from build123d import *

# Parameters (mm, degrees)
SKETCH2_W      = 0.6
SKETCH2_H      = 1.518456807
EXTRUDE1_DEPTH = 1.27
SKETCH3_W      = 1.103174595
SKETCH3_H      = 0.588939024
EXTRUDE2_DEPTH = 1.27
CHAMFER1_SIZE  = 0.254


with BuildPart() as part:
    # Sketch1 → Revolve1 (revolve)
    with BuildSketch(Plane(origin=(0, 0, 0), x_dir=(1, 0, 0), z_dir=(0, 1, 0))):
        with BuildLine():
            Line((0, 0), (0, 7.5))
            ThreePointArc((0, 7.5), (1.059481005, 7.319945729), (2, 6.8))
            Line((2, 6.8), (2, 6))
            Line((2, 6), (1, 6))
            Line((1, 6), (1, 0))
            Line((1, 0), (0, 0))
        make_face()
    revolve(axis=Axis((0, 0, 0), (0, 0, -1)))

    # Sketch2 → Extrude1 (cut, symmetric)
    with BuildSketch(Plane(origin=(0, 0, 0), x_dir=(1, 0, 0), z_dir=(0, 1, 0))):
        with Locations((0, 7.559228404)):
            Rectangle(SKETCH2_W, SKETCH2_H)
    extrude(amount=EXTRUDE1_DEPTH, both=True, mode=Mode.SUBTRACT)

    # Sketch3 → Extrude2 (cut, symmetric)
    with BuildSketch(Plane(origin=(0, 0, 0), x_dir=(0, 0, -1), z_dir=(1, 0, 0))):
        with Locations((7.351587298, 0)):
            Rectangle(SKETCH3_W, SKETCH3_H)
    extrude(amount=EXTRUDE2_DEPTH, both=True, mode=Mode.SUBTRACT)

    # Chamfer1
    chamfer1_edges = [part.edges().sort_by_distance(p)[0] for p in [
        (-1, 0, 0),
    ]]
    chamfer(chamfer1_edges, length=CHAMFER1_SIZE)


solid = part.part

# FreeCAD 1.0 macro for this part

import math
import FreeCAD as App
import Part
import Sketcher
from FreeCAD import Vector


def edges_at(feature, points):
    """Names of the edges that pass closest to the given points."""
    edges = feature.Shape.Edges
    near = lambda p: min(range(len(edges)), key=lambda i: edges[i].distToShape(Part.Vertex(*p))[0])
    return sorted({f"Edge{near(p) + 1}" for p in points})


def add_polygon(sketch, points):
    """Adds a closed chain of lines whose ends are joined by coincident constraints."""
    first, n = sketch.GeometryCount, len(points)
    for a, b in zip(points, points[1:] + points[:1]):
        sketch.addGeometry(Part.LineSegment(App.Vector(*a, 0), App.Vector(*b, 0)), False)
    for i in range(n):
        sketch.addConstraint(Sketcher.Constraint("Coincident", first + i, 2, first + (i + 1) % n, 1))

doc = App.newDocument("Part")
body = doc.addObject("PartDesign::Body", "Body")

# Sketch on XZ plane
sketch1 = doc.addObject("Sketcher::SketchObject", "Sketch")
body.addObject(sketch1)
sketch1.AttachmentSupport = (doc.XZ_Plane, [""])
sketch1.MapMode = "FlatFace"
sketch1.addGeometry([
    Part.LineSegment(Vector(0, -7.5, 0), Vector(0, 0, 0)),  # 0
    Part.LineSegment(Vector(0, 0, 0), Vector(1, 0, 0)),  # 1
    Part.LineSegment(Vector(1, 0, 0), Vector(1, -6, 0)),  # 2
    Part.LineSegment(Vector(1, -6, 0), Vector(2, -6, 0)),  # 3
    Part.LineSegment(Vector(2, -6, 0), Vector(2, -6.8, 0)),  # 4
    Part.ArcOfCircle(Part.Circle(Vector(0, -4.3, 0), Vector(0, 0, 1), 3.2), math.radians(-90), math.radians(-51)),  # 5
], False)
sketch1.addConstraint([
    Sketcher.Constraint("Coincident", 0, 2, 1, 1),
    Sketcher.Constraint("Coincident", 1, 2, 2, 1),
    Sketcher.Constraint("Coincident", 2, 2, 3, 1),
    Sketcher.Constraint("Coincident", 3, 2, 4, 1),
    Sketcher.Constraint("Coincident", 4, 2, 5, 2),
    Sketcher.Constraint("Coincident", 5, 1, 0, 1),
    Sketcher.Constraint("Vertical", 0),
    Sketcher.Constraint("Horizontal", 1),
    Sketcher.Constraint("Vertical", 2),
    Sketcher.Constraint("Horizontal", 3),
    Sketcher.Constraint("Vertical", 4),
    Sketcher.Constraint("Coincident", 0, 2, -1, 1),
    Sketcher.Constraint("PointOnObject", 5, 3, -2),
    Sketcher.Constraint("Equal", 1, 3),
    Sketcher.Constraint("DistanceX", 1, 1, 1, 2, 1.0),
    Sketcher.Constraint("DistanceY", 2, 2, 2, 1, 6.0),
    Sketcher.Constraint("DistanceY", 0, 1, 0, 2, 7.5),
    Sketcher.Constraint("DistanceY", 4, 2, 4, 1, 0.8),
])
revolution = doc.addObject("PartDesign::Revolution", "Revolution")
body.addObject(revolution)
revolution.Profile = sketch1
revolution.ReferenceAxis = (sketch1, ["V_Axis"])
revolution.Angle = 360

# Sketch on XZ plane
sketch2 = doc.addObject("Sketcher::SketchObject", "Sketch001")
body.addObject(sketch2)
sketch2.AttachmentSupport = (doc.XZ_Plane, [""])
sketch2.MapMode = "FlatFace"
add_polygon(sketch2, [(-0.3, -8.3), (-0.3, -6.8), (0.3, -6.8), (0.3, -8.3)])  # lines 0-3
sketch2.addConstraint([
    Sketcher.Constraint("Vertical", 0),
    Sketcher.Constraint("Horizontal", 1),
    Sketcher.Constraint("Vertical", 2),
    Sketcher.Constraint("Horizontal", 3),
    Sketcher.Constraint("DistanceX", 1, 1, 1, 2, 0.6),
    Sketcher.Constraint("DistanceX", 0, 2, -1, 1, 0.3),
    Sketcher.Constraint("DistanceY", 0, 2, -1, 1, 6.8),
    Sketcher.Constraint("DistanceY", 0, 1, 0, 2, 1.518457),
])
pocket1 = doc.addObject("PartDesign::Pocket", "Pocket")
body.addObject(pocket1)
pocket1.Profile = sketch2
pocket1.Length = 2.54
pocket1.Midplane = True

# Sketch on YZ plane
sketch3 = doc.addObject("Sketcher::SketchObject", "Sketch002")
body.addObject(sketch3)
sketch3.AttachmentSupport = (doc.YZ_Plane, [""])
sketch3.MapMode = "FlatFace"
add_polygon(sketch3, [(0.3, -6.8), (-0.3, -6.8), (-0.3, -7.9), (0.3, -7.9)])  # lines 0-3
sketch3.addConstraint([
    Sketcher.Constraint("Horizontal", 0),
    Sketcher.Constraint("Vertical", 1),
    Sketcher.Constraint("Horizontal", 2),
    Sketcher.Constraint("Vertical", 3),
    Sketcher.Constraint("DistanceY", 0, 2, -1, 1, 6.8),
    Sketcher.Constraint("DistanceX", 0, 2, 0, 1, 0.588939),
    Sketcher.Constraint("DistanceY", 1, 2, 1, 1, 1.103175),
    Sketcher.Constraint("DistanceX", 0, 2, -1, 1, 0.29447),
])
pocket2 = doc.addObject("PartDesign::Pocket", "Pocket001")
body.addObject(pocket2)
pocket2.Profile = sketch3
pocket2.Length = 2.54
pocket2.Midplane = True
doc.recompute()

chamfer = doc.addObject("PartDesign::Chamfer", "Chamfer")
body.addObject(chamfer)
chamfer.Base = (pocket2, edges_at(pocket2, [(-1, 0, 0)]))
chamfer.Size = 0.254

doc.recompute()
